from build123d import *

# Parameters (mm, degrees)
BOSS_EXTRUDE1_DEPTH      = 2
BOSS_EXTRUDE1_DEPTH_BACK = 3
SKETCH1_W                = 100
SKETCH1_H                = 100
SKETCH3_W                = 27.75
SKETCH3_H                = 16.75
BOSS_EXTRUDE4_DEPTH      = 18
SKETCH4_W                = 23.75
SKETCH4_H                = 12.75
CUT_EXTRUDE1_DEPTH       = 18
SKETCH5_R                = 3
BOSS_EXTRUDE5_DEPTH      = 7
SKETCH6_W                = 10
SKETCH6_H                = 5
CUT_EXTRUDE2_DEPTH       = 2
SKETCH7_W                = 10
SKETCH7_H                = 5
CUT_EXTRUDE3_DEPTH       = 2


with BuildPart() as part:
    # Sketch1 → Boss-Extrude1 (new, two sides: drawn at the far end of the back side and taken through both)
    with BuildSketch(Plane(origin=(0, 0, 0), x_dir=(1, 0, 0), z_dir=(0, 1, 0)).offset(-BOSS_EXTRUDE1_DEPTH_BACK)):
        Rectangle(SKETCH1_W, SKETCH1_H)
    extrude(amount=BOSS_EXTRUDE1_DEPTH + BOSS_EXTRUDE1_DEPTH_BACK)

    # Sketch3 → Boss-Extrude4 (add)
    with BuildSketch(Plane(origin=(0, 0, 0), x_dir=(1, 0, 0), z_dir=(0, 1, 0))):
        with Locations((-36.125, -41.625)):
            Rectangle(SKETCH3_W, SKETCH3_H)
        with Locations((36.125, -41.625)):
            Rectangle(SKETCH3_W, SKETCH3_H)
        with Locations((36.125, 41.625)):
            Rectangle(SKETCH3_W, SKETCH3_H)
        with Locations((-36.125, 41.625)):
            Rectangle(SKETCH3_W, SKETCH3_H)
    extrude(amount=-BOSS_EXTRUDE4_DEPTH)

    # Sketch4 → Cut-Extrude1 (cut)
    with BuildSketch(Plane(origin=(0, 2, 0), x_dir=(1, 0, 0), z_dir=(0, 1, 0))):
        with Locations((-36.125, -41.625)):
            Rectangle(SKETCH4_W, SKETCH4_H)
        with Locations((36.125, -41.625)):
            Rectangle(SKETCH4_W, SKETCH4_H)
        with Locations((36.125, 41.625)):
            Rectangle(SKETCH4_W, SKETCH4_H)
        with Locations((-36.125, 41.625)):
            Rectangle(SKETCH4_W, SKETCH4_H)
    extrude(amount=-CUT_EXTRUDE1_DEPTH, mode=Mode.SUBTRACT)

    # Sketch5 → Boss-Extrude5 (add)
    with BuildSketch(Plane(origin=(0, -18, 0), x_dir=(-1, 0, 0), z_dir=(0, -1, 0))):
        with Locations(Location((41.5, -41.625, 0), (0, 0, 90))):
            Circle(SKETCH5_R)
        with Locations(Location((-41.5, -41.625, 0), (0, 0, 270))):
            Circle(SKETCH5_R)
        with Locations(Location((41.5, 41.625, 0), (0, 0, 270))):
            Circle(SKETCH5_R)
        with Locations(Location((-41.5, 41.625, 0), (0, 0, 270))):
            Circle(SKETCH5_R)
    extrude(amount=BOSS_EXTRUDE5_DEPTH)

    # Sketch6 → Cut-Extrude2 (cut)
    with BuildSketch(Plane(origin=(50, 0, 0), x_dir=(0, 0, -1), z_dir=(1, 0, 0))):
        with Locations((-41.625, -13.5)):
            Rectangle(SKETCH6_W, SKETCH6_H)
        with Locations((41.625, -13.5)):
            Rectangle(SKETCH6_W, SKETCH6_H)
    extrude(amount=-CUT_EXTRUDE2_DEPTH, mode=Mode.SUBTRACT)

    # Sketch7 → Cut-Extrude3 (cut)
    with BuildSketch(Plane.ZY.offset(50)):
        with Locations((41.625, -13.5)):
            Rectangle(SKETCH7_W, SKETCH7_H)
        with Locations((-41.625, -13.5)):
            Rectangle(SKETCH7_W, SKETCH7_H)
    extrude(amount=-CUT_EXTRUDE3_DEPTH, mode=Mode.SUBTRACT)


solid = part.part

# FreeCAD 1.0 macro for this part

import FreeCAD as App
import Part
import Sketcher


def add_polygon(sketch, points):
    """Adds a closed chain of lines whose ends are joined by coincident constraints."""
    first, n = sketch.GeometryCount, len(points)
    for a, b in zip(points, points[1:] + points[:1]):
        sketch.addGeometry(Part.LineSegment(App.Vector(*a, 0), App.Vector(*b, 0)), False)
    for i in range(n):
        sketch.addConstraint(Sketcher.Constraint("Coincident", first + i, 2, first + (i + 1) % n, 1))

doc = App.newDocument("Part")
body = doc.addObject("PartDesign::Body", "Body")

# Sketch on XZ plane
sketch1 = doc.addObject("Sketcher::SketchObject", "Sketch")
body.addObject(sketch1)
sketch1.AttachmentSupport = (doc.XZ_Plane, [""])
sketch1.MapMode = "FlatFace"
add_polygon(sketch1, [(-50, -50), (-50, 50), (50, 50), (50, -50)])  # lines 0-3
sketch1.addConstraint(Sketcher.Constraint("Vertical", 0))
sketch1.addConstraint(Sketcher.Constraint("Horizontal", 1))
sketch1.addConstraint(Sketcher.Constraint("Vertical", 2))
sketch1.addConstraint(Sketcher.Constraint("Horizontal", 3))
sketch1.addConstraint(Sketcher.Constraint("Symmetric", 0, 2, 2, 2, -1, 1))
sketch1.addConstraint(Sketcher.Constraint("Equal", 3, 0))
sketch1.addConstraint(Sketcher.Constraint("DistanceX", 1, 1, 1, 2, 100.0))
pad1 = doc.addObject("PartDesign::Pad", "Pad")
body.addObject(pad1)
pad1.Profile = sketch1
pad1.Type = "TwoLengths"
pad1.Length = 2
pad1.Length2 = 3
pad1.Reversed = True

# Sketch on XZ plane
sketch2 = doc.addObject("Sketcher::SketchObject", "Sketch001")
body.addObject(sketch2)
sketch2.AttachmentSupport = (doc.XZ_Plane, [""])
sketch2.MapMode = "FlatFace"
add_polygon(sketch2, [(-50, 33), (-50, 50), (-22, 50), (-22, 33)])  # lines 0-3
add_polygon(sketch2, [(22, 33), (22, 50), (50, 50), (50, 33)])  # lines 4-7
add_polygon(sketch2, [(22, -50), (22, -33), (50, -33), (50, -50)])  # lines 8-11
add_polygon(sketch2, [(-50, -50), (-50, -33), (-22, -33), (-22, -50)])  # lines 12-15
sketch2.addConstraint(Sketcher.Constraint("Vertical", 0))
sketch2.addConstraint(Sketcher.Constraint("Horizontal", 1))
sketch2.addConstraint(Sketcher.Constraint("Vertical", 2))
sketch2.addConstraint(Sketcher.Constraint("Horizontal", 3))
sketch2.addConstraint(Sketcher.Constraint("Vertical", 4))
sketch2.addConstraint(Sketcher.Constraint("Horizontal", 5))
sketch2.addConstraint(Sketcher.Constraint("Vertical", 6))
sketch2.addConstraint(Sketcher.Constraint("Horizontal", 7))
sketch2.addConstraint(Sketcher.Constraint("Vertical", 8))
sketch2.addConstraint(Sketcher.Constraint("Horizontal", 9))
sketch2.addConstraint(Sketcher.Constraint("Vertical", 10))
sketch2.addConstraint(Sketcher.Constraint("Horizontal", 11))
sketch2.addConstraint(Sketcher.Constraint("Vertical", 12))
sketch2.addConstraint(Sketcher.Constraint("Horizontal", 13))
sketch2.addConstraint(Sketcher.Constraint("Vertical", 14))
sketch2.addConstraint(Sketcher.Constraint("Horizontal", 15))
sketch2.addConstraint(Sketcher.Constraint("Symmetric", 2, 2, 8, 2, -1, 1))
sketch2.addConstraint(Sketcher.Constraint("Symmetric", 0, 2, 10, 2, -1, 1))
sketch2.addConstraint(Sketcher.Constraint("Symmetric", 6, 2, 12, 2, -1, 1))
sketch2.addConstraint(Sketcher.Constraint("Symmetric", 4, 2, 14, 2, -1, 1))
sketch2.addConstraint(Sketcher.Constraint("Symmetric", 1, 2, 4, 2, -2))
sketch2.addConstraint(Sketcher.Constraint("Symmetric", 3, 2, 6, 2, -2))
sketch2.addConstraint(Sketcher.Constraint("DistanceX", 0, 2, -1, 1, 50.0))
sketch2.addConstraint(Sketcher.Constraint("DistanceY", -1, 1, 0, 2, 50.0))
sketch2.addConstraint(Sketcher.Constraint("DistanceX", 1, 1, 1, 2, 27.75))
sketch2.addConstraint(Sketcher.Constraint("DistanceY", 0, 1, 0, 2, 16.75))
pad2 = doc.addObject("PartDesign::Pad", "Pad001")
body.addObject(pad2)
pad2.Profile = sketch2
pad2.Length = 18

# Sketch on XZ plane
sketch3 = doc.addObject("Sketcher::SketchObject", "Sketch002")
body.addObject(sketch3)
sketch3.AttachmentSupport = (doc.XZ_Plane, [""])
sketch3.MapMode = "FlatFace"
sketch3.AttachmentOffset = App.Placement(App.Vector(0, 0, -2), App.Rotation())
add_polygon(sketch3, [(-48, 35), (-48, 48), (-24, 48), (-24, 35)])  # lines 0-3
add_polygon(sketch3, [(24, 35), (24, 48), (48, 48), (48, 35)])  # lines 4-7
add_polygon(sketch3, [(24, -48), (24, -35), (48, -35), (48, -48)])  # lines 8-11
add_polygon(sketch3, [(-48, -48), (-48, -35), (-24, -35), (-24, -48)])  # lines 12-15
sketch3.addConstraint(Sketcher.Constraint("Vertical", 0))
sketch3.addConstraint(Sketcher.Constraint("Horizontal", 1))
sketch3.addConstraint(Sketcher.Constraint("Vertical", 2))
sketch3.addConstraint(Sketcher.Constraint("Horizontal", 3))
sketch3.addConstraint(Sketcher.Constraint("Vertical", 4))
sketch3.addConstraint(Sketcher.Constraint("Horizontal", 5))
sketch3.addConstraint(Sketcher.Constraint("Vertical", 6))
sketch3.addConstraint(Sketcher.Constraint("Horizontal", 7))
sketch3.addConstraint(Sketcher.Constraint("Vertical", 8))
sketch3.addConstraint(Sketcher.Constraint("Horizontal", 9))
sketch3.addConstraint(Sketcher.Constraint("Vertical", 10))
sketch3.addConstraint(Sketcher.Constraint("Horizontal", 11))
sketch3.addConstraint(Sketcher.Constraint("Vertical", 12))
sketch3.addConstraint(Sketcher.Constraint("Horizontal", 13))
sketch3.addConstraint(Sketcher.Constraint("Vertical", 14))
sketch3.addConstraint(Sketcher.Constraint("Horizontal", 15))
sketch3.addConstraint(Sketcher.Constraint("Symmetric", 2, 2, 8, 2, -1, 1))
sketch3.addConstraint(Sketcher.Constraint("Symmetric", 0, 2, 10, 2, -1, 1))
sketch3.addConstraint(Sketcher.Constraint("Symmetric", 6, 2, 12, 2, -1, 1))
sketch3.addConstraint(Sketcher.Constraint("Symmetric", 4, 2, 14, 2, -1, 1))
sketch3.addConstraint(Sketcher.Constraint("Symmetric", 1, 2, 4, 2, -2))
sketch3.addConstraint(Sketcher.Constraint("Symmetric", 3, 2, 6, 2, -2))
sketch3.addConstraint(Sketcher.Constraint("DistanceX", 0, 2, -1, 1, 48.0))
sketch3.addConstraint(Sketcher.Constraint("DistanceY", -1, 1, 0, 2, 48.0))
sketch3.addConstraint(Sketcher.Constraint("DistanceX", 1, 1, 1, 2, 23.75))
sketch3.addConstraint(Sketcher.Constraint("DistanceY", 0, 1, 0, 2, 12.75))
pocket1 = doc.addObject("PartDesign::Pocket", "Pocket")
body.addObject(pocket1)
pocket1.Profile = sketch3
pocket1.Length = 18
pocket1.Reversed = True

# Sketch on XZ plane
sketch4 = doc.addObject("Sketcher::SketchObject", "Sketch003")
body.addObject(sketch4)
sketch4.AttachmentSupport = (doc.XZ_Plane, [""])
sketch4.MapMode = "FlatFace"
sketch4.AttachmentOffset = App.Placement(App.Vector(0, 0, 18), App.Rotation())
sketch4.addGeometry(Part.Circle(App.Vector(-41.5, 41.6, 0), App.Vector(0, 0, 1), 3), False)
sketch4.addGeometry(Part.Circle(App.Vector(41.5, 41.6, 0), App.Vector(0, 0, 1), 3), False)
sketch4.addGeometry(Part.Circle(App.Vector(-41.5, -41.6, 0), App.Vector(0, 0, 1), 3), False)
sketch4.addGeometry(Part.Circle(App.Vector(41.5, -41.6, 0), App.Vector(0, 0, 1), 3), False)
sketch4.addConstraint(Sketcher.Constraint("Equal", 0, 1))
sketch4.addConstraint(Sketcher.Constraint("Equal", 1, 2))
sketch4.addConstraint(Sketcher.Constraint("Equal", 2, 3))
sketch4.addConstraint(Sketcher.Constraint("Symmetric", 1, 3, 2, 3, -1, 1))
sketch4.addConstraint(Sketcher.Constraint("Symmetric", 0, 3, 3, 3, -1, 1))
sketch4.addConstraint(Sketcher.Constraint("Symmetric", 0, 3, 1, 3, -2))
sketch4.addConstraint(Sketcher.Constraint("Diameter", 0, 6.0))
sketch4.addConstraint(Sketcher.Constraint("DistanceX", 0, 3, 1, 3, 83.0))
sketch4.addConstraint(Sketcher.Constraint("DistanceY", 2, 3, 0, 3, 83.25))
pad3 = doc.addObject("PartDesign::Pad", "Pad002")
body.addObject(pad3)
pad3.Profile = sketch4
pad3.Length = 7

# Sketch on YZ plane
sketch5 = doc.addObject("Sketcher::SketchObject", "Sketch004")
body.addObject(sketch5)
sketch5.AttachmentSupport = (doc.YZ_Plane, [""])
sketch5.MapMode = "FlatFace"
sketch5.AttachmentOffset = App.Placement(App.Vector(0, 0, 50), App.Rotation())
add_polygon(sketch5, [(-11, 47), (-16, 47), (-16, 37), (-11, 37)])  # lines 0-3
add_polygon(sketch5, [(-11, -37), (-16, -37), (-16, -47), (-11, -47)])  # lines 4-7
sketch5.addConstraint(Sketcher.Constraint("Horizontal", 0))
sketch5.addConstraint(Sketcher.Constraint("Vertical", 1))
sketch5.addConstraint(Sketcher.Constraint("Horizontal", 2))
sketch5.addConstraint(Sketcher.Constraint("Vertical", 3))
sketch5.addConstraint(Sketcher.Constraint("Horizontal", 4))
sketch5.addConstraint(Sketcher.Constraint("Vertical", 5))
sketch5.addConstraint(Sketcher.Constraint("Horizontal", 6))
sketch5.addConstraint(Sketcher.Constraint("Vertical", 7))
sketch5.addConstraint(Sketcher.Constraint("Symmetric", 1, 2, 4, 2, -1))
sketch5.addConstraint(Sketcher.Constraint("Symmetric", 3, 2, 6, 2, -1))
sketch5.addConstraint(Sketcher.Constraint("DistanceX", 0, 2, 0, 1, 5.0))
sketch5.addConstraint(Sketcher.Constraint("DistanceY", 1, 2, 1, 1, 10.0))
sketch5.addConstraint(Sketcher.Constraint("DistanceX", 0, 2, -1, 1, 16.0))
sketch5.addConstraint(Sketcher.Constraint("DistanceY", 4, 2, 1, 2, 73.25))
pocket2 = doc.addObject("PartDesign::Pocket", "Pocket001")
body.addObject(pocket2)
pocket2.Profile = sketch5
pocket2.Length = 2

# Sketch on YZ plane
sketch6 = doc.addObject("Sketcher::SketchObject", "Sketch005")
body.addObject(sketch6)
sketch6.AttachmentSupport = (doc.YZ_Plane, [""])
sketch6.MapMode = "FlatFace"
sketch6.AttachmentOffset = App.Placement(App.Vector(0, 0, -50), App.Rotation())
add_polygon(sketch6, [(-11, 37), (-16, 37), (-16, 47), (-11, 47)])  # lines 0-3
add_polygon(sketch6, [(-11, -47), (-16, -47), (-16, -37), (-11, -37)])  # lines 4-7
sketch6.addConstraint(Sketcher.Constraint("Horizontal", 0))
sketch6.addConstraint(Sketcher.Constraint("Vertical", 1))
sketch6.addConstraint(Sketcher.Constraint("Horizontal", 2))
sketch6.addConstraint(Sketcher.Constraint("Vertical", 3))
sketch6.addConstraint(Sketcher.Constraint("Horizontal", 4))
sketch6.addConstraint(Sketcher.Constraint("Vertical", 5))
sketch6.addConstraint(Sketcher.Constraint("Horizontal", 6))
sketch6.addConstraint(Sketcher.Constraint("Vertical", 7))
sketch6.addConstraint(Sketcher.Constraint("Symmetric", 1, 2, 4, 2, -1))
sketch6.addConstraint(Sketcher.Constraint("Symmetric", 3, 2, 6, 2, -1))
sketch6.addConstraint(Sketcher.Constraint("DistanceX", 0, 2, 0, 1, 5.0))
sketch6.addConstraint(Sketcher.Constraint("DistanceY", 1, 1, 1, 2, 10.0))
sketch6.addConstraint(Sketcher.Constraint("DistanceX", 0, 2, -1, 1, 16.0))
sketch6.addConstraint(Sketcher.Constraint("DistanceY", 4, 2, 0, 2, 83.25))
pocket3 = doc.addObject("PartDesign::Pocket", "Pocket002")
body.addObject(pocket3)
pocket3.Profile = sketch6
pocket3.Length = 2
pocket3.Reversed = True

doc.recompute()
